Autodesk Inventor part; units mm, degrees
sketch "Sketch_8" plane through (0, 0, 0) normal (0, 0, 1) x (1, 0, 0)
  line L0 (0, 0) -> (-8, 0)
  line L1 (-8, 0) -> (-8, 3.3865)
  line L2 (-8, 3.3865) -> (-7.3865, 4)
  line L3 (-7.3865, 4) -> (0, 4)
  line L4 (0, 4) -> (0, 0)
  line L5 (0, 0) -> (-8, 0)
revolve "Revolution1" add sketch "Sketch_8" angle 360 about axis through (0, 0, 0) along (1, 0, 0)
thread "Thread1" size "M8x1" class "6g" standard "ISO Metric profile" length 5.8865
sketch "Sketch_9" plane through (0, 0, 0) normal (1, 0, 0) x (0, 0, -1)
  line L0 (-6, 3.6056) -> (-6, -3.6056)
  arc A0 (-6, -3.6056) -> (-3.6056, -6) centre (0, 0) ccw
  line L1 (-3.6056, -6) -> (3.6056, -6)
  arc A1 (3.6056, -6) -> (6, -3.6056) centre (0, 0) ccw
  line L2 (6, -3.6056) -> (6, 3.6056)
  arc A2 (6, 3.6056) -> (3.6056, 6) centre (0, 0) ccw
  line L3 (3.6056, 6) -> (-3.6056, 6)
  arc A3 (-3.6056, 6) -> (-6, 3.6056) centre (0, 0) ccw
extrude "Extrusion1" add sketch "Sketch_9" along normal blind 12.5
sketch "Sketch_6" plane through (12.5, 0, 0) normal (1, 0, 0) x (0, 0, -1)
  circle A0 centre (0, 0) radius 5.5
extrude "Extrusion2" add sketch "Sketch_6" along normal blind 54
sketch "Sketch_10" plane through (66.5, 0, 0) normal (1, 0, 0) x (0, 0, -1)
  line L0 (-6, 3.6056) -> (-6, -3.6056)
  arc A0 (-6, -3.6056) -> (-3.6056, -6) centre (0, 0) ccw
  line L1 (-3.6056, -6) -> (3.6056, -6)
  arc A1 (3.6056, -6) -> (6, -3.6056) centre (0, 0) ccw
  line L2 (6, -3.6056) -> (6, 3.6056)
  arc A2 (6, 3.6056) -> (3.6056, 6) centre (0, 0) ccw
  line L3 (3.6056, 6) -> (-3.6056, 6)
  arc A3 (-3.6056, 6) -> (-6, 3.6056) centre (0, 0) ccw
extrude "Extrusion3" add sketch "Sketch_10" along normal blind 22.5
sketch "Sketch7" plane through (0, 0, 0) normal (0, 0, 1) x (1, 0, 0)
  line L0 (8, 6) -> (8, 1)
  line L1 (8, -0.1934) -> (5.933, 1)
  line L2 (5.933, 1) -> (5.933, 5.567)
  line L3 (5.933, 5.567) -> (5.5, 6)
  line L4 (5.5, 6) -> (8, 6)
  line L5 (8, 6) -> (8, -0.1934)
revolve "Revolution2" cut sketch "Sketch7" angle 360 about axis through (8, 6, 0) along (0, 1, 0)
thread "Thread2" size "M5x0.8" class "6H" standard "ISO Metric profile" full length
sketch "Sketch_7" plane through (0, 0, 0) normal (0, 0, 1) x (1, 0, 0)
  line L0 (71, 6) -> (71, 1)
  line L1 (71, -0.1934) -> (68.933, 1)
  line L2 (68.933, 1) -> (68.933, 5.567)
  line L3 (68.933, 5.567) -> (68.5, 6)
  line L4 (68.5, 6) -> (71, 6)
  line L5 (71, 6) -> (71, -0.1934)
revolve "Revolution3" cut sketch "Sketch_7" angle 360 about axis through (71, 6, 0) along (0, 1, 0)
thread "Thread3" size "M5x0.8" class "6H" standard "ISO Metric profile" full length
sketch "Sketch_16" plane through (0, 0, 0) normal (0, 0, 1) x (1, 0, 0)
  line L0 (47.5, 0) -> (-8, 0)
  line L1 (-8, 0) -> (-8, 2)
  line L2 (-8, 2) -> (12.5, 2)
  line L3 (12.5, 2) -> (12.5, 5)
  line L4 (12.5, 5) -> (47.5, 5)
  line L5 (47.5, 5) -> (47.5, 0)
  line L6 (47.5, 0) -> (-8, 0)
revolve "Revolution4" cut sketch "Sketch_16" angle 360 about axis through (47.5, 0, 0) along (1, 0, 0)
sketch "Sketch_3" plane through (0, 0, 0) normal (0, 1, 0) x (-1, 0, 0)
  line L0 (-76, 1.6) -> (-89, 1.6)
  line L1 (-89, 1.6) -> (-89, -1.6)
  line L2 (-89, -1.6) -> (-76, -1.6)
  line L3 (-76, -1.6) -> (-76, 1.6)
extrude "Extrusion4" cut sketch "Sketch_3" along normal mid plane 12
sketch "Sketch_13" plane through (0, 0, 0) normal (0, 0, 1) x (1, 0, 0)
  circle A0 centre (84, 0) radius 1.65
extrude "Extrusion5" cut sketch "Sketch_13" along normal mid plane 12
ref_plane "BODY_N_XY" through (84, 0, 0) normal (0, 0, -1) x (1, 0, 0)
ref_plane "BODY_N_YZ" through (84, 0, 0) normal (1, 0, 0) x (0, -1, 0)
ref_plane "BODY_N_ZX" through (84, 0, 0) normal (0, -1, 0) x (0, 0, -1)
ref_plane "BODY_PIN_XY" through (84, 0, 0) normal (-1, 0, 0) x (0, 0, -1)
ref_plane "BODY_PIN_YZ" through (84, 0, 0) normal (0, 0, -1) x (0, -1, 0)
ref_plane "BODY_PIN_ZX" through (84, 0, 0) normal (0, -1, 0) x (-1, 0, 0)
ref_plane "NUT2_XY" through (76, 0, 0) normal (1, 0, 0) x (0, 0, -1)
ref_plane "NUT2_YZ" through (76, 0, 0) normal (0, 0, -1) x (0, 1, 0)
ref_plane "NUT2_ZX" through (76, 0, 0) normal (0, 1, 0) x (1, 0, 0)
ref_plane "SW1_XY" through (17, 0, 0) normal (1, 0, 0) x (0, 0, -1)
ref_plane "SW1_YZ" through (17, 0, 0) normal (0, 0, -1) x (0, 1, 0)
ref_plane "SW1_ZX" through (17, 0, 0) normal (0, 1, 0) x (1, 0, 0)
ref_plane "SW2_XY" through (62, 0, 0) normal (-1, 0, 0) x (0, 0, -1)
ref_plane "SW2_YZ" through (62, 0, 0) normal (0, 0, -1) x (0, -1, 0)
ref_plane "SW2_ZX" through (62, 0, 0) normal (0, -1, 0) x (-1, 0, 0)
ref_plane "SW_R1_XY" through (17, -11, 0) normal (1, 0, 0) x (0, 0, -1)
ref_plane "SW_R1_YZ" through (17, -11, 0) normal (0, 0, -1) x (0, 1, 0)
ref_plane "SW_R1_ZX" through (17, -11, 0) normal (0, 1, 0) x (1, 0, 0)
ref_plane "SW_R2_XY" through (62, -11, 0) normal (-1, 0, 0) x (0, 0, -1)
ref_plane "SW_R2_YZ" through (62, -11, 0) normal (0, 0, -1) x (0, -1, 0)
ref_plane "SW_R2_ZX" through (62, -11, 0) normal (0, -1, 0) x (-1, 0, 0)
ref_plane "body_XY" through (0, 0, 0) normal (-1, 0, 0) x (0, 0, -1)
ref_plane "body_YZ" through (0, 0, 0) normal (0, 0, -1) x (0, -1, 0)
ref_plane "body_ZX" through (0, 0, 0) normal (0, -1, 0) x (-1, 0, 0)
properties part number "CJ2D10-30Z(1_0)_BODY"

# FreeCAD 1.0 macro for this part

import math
import FreeCAD as App
import Part
import Sketcher
from FreeCAD import Vector
Q = App.Units.Quantity


def add_polygon(sketch, points):
    """Adds a closed chain of lines whose ends are joined by coincident constraints."""
    first, n = sketch.GeometryCount, len(points)
    for a, b in zip(points, points[1:] + points[:1]):
        sketch.addGeometry(Part.LineSegment(App.Vector(*a, 0), App.Vector(*b, 0)), False)
    for i in range(n):
        sketch.addConstraint(Sketcher.Constraint("Coincident", first + i, 2, first + (i + 1) % n, 1))

doc = App.newDocument("Part")
params = doc.addObject("Spreadsheet::Sheet", "Params")
for row, (alias, value) in enumerate([
    ("sketch1_width", "8 mm"),
    ("sketch1_height", "4 mm"),
    ("revolution_angle", "360 deg"),
    ("sketch2_radius", "7 mm"),
    ("pad1_length", "12.5 mm"),
    ("sketch3_diameter", "11 mm"),
    ("pad2_length", "54 mm"),
    ("sketch4_radius", "7 mm"),
    ("pad3_length", "22.5 mm"),
    ("sketch5_width", "2.5 mm"),
    ("groove_angle", "360 deg"),
    ("sketch6_width", "2.5 mm"),
    ("groove2_angle", "360 deg"),
    ("sketch7_width", "35 mm"),
    ("sketch7_height", "5 mm"),
    ("sketch7_height2", "3 mm"),
    ("sketch7_width2", "55.5 mm"),
    ("groove3_angle", "360 deg"),
    ("sketch8_width", "13 mm"),
    ("sketch8_height", "3.2 mm"),
    ("pocket1_length", "12 mm"),
    ("sketch9_diameter", "3.3 mm"),
    ("pocket2_length", "12 mm"),
], start=1):
    params.set(f"A{row}", alias)
    params.set(f"B{row}", "=" + value)
    params.setAlias(f"B{row}", alias)

body = doc.addObject("PartDesign::Body", "Body")

sketch1 = body.newObject("Sketcher::SketchObject", "Sketch")
sketch1.AttachmentSupport = (doc.getObject("XY_Plane"), [""])
sketch1.MapMode = "FlatFace"
add_polygon(sketch1, [(-8, 0), (0, 0), (0, 4), (-7.3865, 4), (-8, 3.3865)])
sketch1.addConstraint(Sketcher.Constraint("Horizontal", 0))
sketch1.addConstraint(Sketcher.Constraint("Vertical", 1))
sketch1.addConstraint(Sketcher.Constraint("Horizontal", 2))
sketch1.addConstraint(Sketcher.Constraint("Vertical", 4))
sketch1.addConstraint(Sketcher.Constraint("Coincident", 0, 2, -1, 1))
sketch1.addConstraint(Sketcher.Constraint("DistanceX", 0, 1, 0, 2, 8.0))
sketch1.addConstraint(Sketcher.Constraint("DistanceY", 1, 1, 1, 2, 4.0))
sketch1.addConstraint(Sketcher.Constraint("Angle", 3, Q("-135 deg")))
sketch1.addConstraint(Sketcher.Constraint("DistanceX", 2, 2, 2, 1, 7.3865))
sketch1.setExpression("Constraints[10]", "Params.sketch1_width")
sketch1.setExpression("Constraints[11]", "Params.sketch1_height")
revolution = body.newObject("PartDesign::Revolution", "Revolution")
revolution.Profile = sketch1
revolution.ReferenceAxis = (sketch1, ["H_Axis"])
revolution.setExpression("Angle", "Params.revolution_angle")

sketch2 = body.newObject("Sketcher::SketchObject", "Sketch001")
sketch2.AttachmentSupport = (doc.getObject("YZ_Plane"), [""])
sketch2.MapMode = "FlatFace"
sketch2.addGeometry(Part.ArcOfCircle(Part.Circle(Vector(0, 0, 0), Vector(0, 0, 1), 7.000025), math.radians(31.003061), math.radians(58.996939)), False)
sketch2.addGeometry(Part.LineSegment(Vector(3.6056, 6, 0), Vector(-3.6056, 6, 0)), False)
sketch2.addGeometry(Part.ArcOfCircle(Part.Circle(Vector(0, 0, 0), Vector(0, 0, 1), 7.000025), math.radians(121.003061), math.radians(148.996939)), False)
sketch2.addGeometry(Part.LineSegment(Vector(-6, 3.6056, 0), Vector(-6, -3.6056, 0)), False)
sketch2.addGeometry(Part.ArcOfCircle(Part.Circle(Vector(0, 0, 0), Vector(0, 0, 1), 7.000025), math.radians(-148.996939), math.radians(-121.003061)), False)
sketch2.addGeometry(Part.LineSegment(Vector(-3.6056, -6, 0), Vector(3.6056, -6, 0)), False)
sketch2.addGeometry(Part.ArcOfCircle(Part.Circle(Vector(0, 0, 0), Vector(0, 0, 1), 7.000025), math.radians(-58.996939), math.radians(-31.003061)), False)
sketch2.addGeometry(Part.LineSegment(Vector(6, -3.6056, 0), Vector(6, 3.6056, 0)), False)
sketch2.addConstraint(Sketcher.Constraint("Coincident", 0, 2, 1, 1))
sketch2.addConstraint(Sketcher.Constraint("Coincident", 1, 2, 2, 1))
sketch2.addConstraint(Sketcher.Constraint("Coincident", 2, 2, 3, 1))
sketch2.addConstraint(Sketcher.Constraint("Coincident", 3, 2, 4, 1))
sketch2.addConstraint(Sketcher.Constraint("Coincident", 4, 2, 5, 1))
sketch2.addConstraint(Sketcher.Constraint("Coincident", 5, 2, 6, 1))
sketch2.addConstraint(Sketcher.Constraint("Coincident", 6, 2, 7, 1))
sketch2.addConstraint(Sketcher.Constraint("Coincident", 7, 2, 0, 1))
sketch2.addConstraint(Sketcher.Constraint("Horizontal", 1))
sketch2.addConstraint(Sketcher.Constraint("Vertical", 3))
sketch2.addConstraint(Sketcher.Constraint("Horizontal", 5))
sketch2.addConstraint(Sketcher.Constraint("Vertical", 7))
sketch2.addConstraint(Sketcher.Constraint("Coincident", 0, 3, -1, 1))
sketch2.addConstraint(Sketcher.Constraint("Coincident", 2, 3, -1, 1))
sketch2.addConstraint(Sketcher.Constraint("Coincident", 4, 3, -1, 1))
sketch2.addConstraint(Sketcher.Constraint("Coincident", 6, 3, -1, 1))
sketch2.addConstraint(Sketcher.Constraint("Equal", 0, 2))
sketch2.addConstraint(Sketcher.Constraint("Equal", 2, 4))
sketch2.addConstraint(Sketcher.Constraint("Equal", 4, 6))
sketch2.addConstraint(Sketcher.Constraint("Horizontal", 3, 2, 6, 2))
sketch2.addConstraint(Sketcher.Constraint("Vertical", 1, 2, 4, 2))
sketch2.addConstraint(Sketcher.Constraint("Equal", 5, 3))
sketch2.addConstraint(Sketcher.Constraint("Radius", 0, 7.0))
sketch2.addConstraint(Sketcher.Constraint("DistanceY", -1, 1, 0, 2, 6.0))
sketch2.setExpression("Constraints[22]", "Params.sketch2_radius")
pad1 = body.newObject("PartDesign::Pad", "Pad")
pad1.Profile = sketch2
pad1.setExpression("Length", "Params.pad1_length")

sketch3 = body.newObject("Sketcher::SketchObject", "Sketch002")
sketch3.AttachmentSupport = (doc.getObject("YZ_Plane"), [""])
sketch3.MapMode = "FlatFace"
sketch3.AttachmentOffset = App.Placement(Vector(0, 0, 12.5), App.Rotation())
sketch3.addGeometry(Part.Circle(Vector(0, 0, 0), Vector(0, 0, 1), 5.5), False)
sketch3.addConstraint(Sketcher.Constraint("Coincident", 0, 3, -1, 1))
sketch3.addConstraint(Sketcher.Constraint("Diameter", 0, 11.0))
sketch3.setExpression("Constraints[1]", "Params.sketch3_diameter")
pad2 = body.newObject("PartDesign::Pad", "Pad001")
pad2.Profile = sketch3
pad2.setExpression("Length", "Params.pad2_length")

sketch4 = body.newObject("Sketcher::SketchObject", "Sketch003")
sketch4.AttachmentSupport = (doc.getObject("YZ_Plane"), [""])
sketch4.MapMode = "FlatFace"
sketch4.AttachmentOffset = App.Placement(Vector(0, 0, 66.5), App.Rotation())
sketch4.addGeometry(Part.ArcOfCircle(Part.Circle(Vector(0, 0, 0), Vector(0, 0, 1), 7.000025), math.radians(31.003061), math.radians(58.996939)), False)
sketch4.addGeometry(Part.LineSegment(Vector(3.6056, 6, 0), Vector(-3.6056, 6, 0)), False)
sketch4.addGeometry(Part.ArcOfCircle(Part.Circle(Vector(0, 0, 0), Vector(0, 0, 1), 7.000025), math.radians(121.003061), math.radians(148.996939)), False)
sketch4.addGeometry(Part.LineSegment(Vector(-6, 3.6056, 0), Vector(-6, -3.6056, 0)), False)
sketch4.addGeometry(Part.ArcOfCircle(Part.Circle(Vector(0, 0, 0), Vector(0, 0, 1), 7.000025), math.radians(-148.996939), math.radians(-121.003061)), False)
sketch4.addGeometry(Part.LineSegment(Vector(-3.6056, -6, 0), Vector(3.6056, -6, 0)), False)
sketch4.addGeometry(Part.ArcOfCircle(Part.Circle(Vector(0, 0, 0), Vector(0, 0, 1), 7.000025), math.radians(-58.996939), math.radians(-31.003061)), False)
sketch4.addGeometry(Part.LineSegment(Vector(6, -3.6056, 0), Vector(6, 3.6056, 0)), False)
sketch4.addConstraint(Sketcher.Constraint("Coincident", 0, 2, 1, 1))
sketch4.addConstraint(Sketcher.Constraint("Coincident", 1, 2, 2, 1))
sketch4.addConstraint(Sketcher.Constraint("Coincident", 2, 2, 3, 1))
sketch4.addConstraint(Sketcher.Constraint("Coincident", 3, 2, 4, 1))
sketch4.addConstraint(Sketcher.Constraint("Coincident", 4, 2, 5, 1))
sketch4.addConstraint(Sketcher.Constraint("Coincident", 5, 2, 6, 1))
sketch4.addConstraint(Sketcher.Constraint("Coincident", 6, 2, 7, 1))
sketch4.addConstraint(Sketcher.Constraint("Coincident", 7, 2, 0, 1))
sketch4.addConstraint(Sketcher.Constraint("Horizontal", 1))
sketch4.addConstraint(Sketcher.Constraint("Vertical", 3))
sketch4.addConstraint(Sketcher.Constraint("Horizontal", 5))
sketch4.addConstraint(Sketcher.Constraint("Vertical", 7))
sketch4.addConstraint(Sketcher.Constraint("Coincident", 0, 3, -1, 1))
sketch4.addConstraint(Sketcher.Constraint("Coincident", 2, 3, -1, 1))
sketch4.addConstraint(Sketcher.Constraint("Coincident", 4, 3, -1, 1))
sketch4.addConstraint(Sketcher.Constraint("Coincident", 6, 3, -1, 1))
sketch4.addConstraint(Sketcher.Constraint("Equal", 0, 2))
sketch4.addConstraint(Sketcher.Constraint("Equal", 2, 4))
sketch4.addConstraint(Sketcher.Constraint("Equal", 4, 6))
sketch4.addConstraint(Sketcher.Constraint("Horizontal", 3, 2, 6, 2))
sketch4.addConstraint(Sketcher.Constraint("Vertical", 1, 2, 4, 2))
sketch4.addConstraint(Sketcher.Constraint("Equal", 5, 3))
sketch4.addConstraint(Sketcher.Constraint("Radius", 0, 7.0))
sketch4.addConstraint(Sketcher.Constraint("DistanceY", -1, 1, 0, 2, 6.0))
sketch4.setExpression("Constraints[22]", "Params.sketch4_radius")
pad3 = body.newObject("PartDesign::Pad", "Pad002")
pad3.Profile = sketch4
pad3.setExpression("Length", "Params.pad3_length")

sketch5 = body.newObject("Sketcher::SketchObject", "Sketch004")
sketch5.AttachmentSupport = (doc.getObject("XY_Plane"), [""])
sketch5.MapMode = "FlatFace"
add_polygon(sketch5, [(8, -0.1934), (8, 6), (5.5, 6), (5.933, 5.567), (5.933, 1)])
sketch5.addGeometry(Part.LineSegment(Vector(8, -0.1934, 0), Vector(8, 6, 0)), True)
sketch5.addConstraint(Sketcher.Constraint("Vertical", 0))
sketch5.addConstraint(Sketcher.Constraint("Horizontal", 1))
sketch5.addConstraint(Sketcher.Constraint("Vertical", 3))
sketch5.addConstraint(Sketcher.Constraint("Vertical", 5))
sketch5.addConstraint(Sketcher.Constraint("Coincident", 5, 1, 4, 2))
sketch5.addConstraint(Sketcher.Constraint("Horizontal", 1, 2, 5, 2))
sketch5.addConstraint(Sketcher.Constraint("Angle", 2, Q("-45 deg")))
sketch5.addConstraint(Sketcher.Constraint("Angle", 4, Q("-30.0004 deg")))
sketch5.addConstraint(Sketcher.Constraint("DistanceX", 1, 2, 1, 1, 2.5))
sketch5.addConstraint(Sketcher.Constraint("DistanceX", -1, 1, 0, 2, 8.0))
sketch5.addConstraint(Sketcher.Constraint("DistanceY", -1, 1, 0, 2, 6.0))
sketch5.addConstraint(Sketcher.Constraint("DistanceY", -1, 1, 3, 2, 1.0))
sketch5.addConstraint(Sketcher.Constraint("DistanceY", 3, 2, 3, 1, 4.567))
sketch5.setExpression("Constraints[13]", "Params.sketch5_width")
groove = body.newObject("PartDesign::Groove", "Groove")
groove.Profile = sketch5
groove.ReferenceAxis = (sketch5, ["Axis0"])
groove.setExpression("Angle", "Params.groove_angle")

sketch6 = body.newObject("Sketcher::SketchObject", "Sketch005")
sketch6.AttachmentSupport = (doc.getObject("XY_Plane"), [""])
sketch6.MapMode = "FlatFace"
add_polygon(sketch6, [(71, -0.1934), (71, 6), (68.5, 6), (68.933, 5.567), (68.933, 1)])
sketch6.addGeometry(Part.LineSegment(Vector(71, -0.1934, 0), Vector(71, 6, 0)), True)
sketch6.addConstraint(Sketcher.Constraint("Vertical", 0))
sketch6.addConstraint(Sketcher.Constraint("Horizontal", 1))
sketch6.addConstraint(Sketcher.Constraint("Vertical", 3))
sketch6.addConstraint(Sketcher.Constraint("Vertical", 5))
sketch6.addConstraint(Sketcher.Constraint("Coincident", 5, 1, 4, 2))
sketch6.addConstraint(Sketcher.Constraint("Horizontal", 1, 2, 5, 2))
sketch6.addConstraint(Sketcher.Constraint("Angle", 2, Q("-45 deg")))
sketch6.addConstraint(Sketcher.Constraint("Angle", 4, Q("-30.0004 deg")))
sketch6.addConstraint(Sketcher.Constraint("DistanceX", 1, 2, 1, 1, 2.5))
sketch6.addConstraint(Sketcher.Constraint("DistanceX", -1, 1, 0, 2, 71.0))
sketch6.addConstraint(Sketcher.Constraint("DistanceY", -1, 1, 0, 2, 6.0))
sketch6.addConstraint(Sketcher.Constraint("DistanceY", -1, 1, 3, 2, 1.0))
sketch6.addConstraint(Sketcher.Constraint("DistanceY", 3, 2, 3, 1, 4.567))
sketch6.setExpression("Constraints[13]", "Params.sketch6_width")
groove2 = body.newObject("PartDesign::Groove", "Groove001")
groove2.Profile = sketch6
groove2.ReferenceAxis = (sketch6, ["Axis0"])
groove2.setExpression("Angle", "Params.groove2_angle")

sketch7 = body.newObject("Sketcher::SketchObject", "Sketch006")
sketch7.AttachmentSupport = (doc.getObject("XY_Plane"), [""])
sketch7.MapMode = "FlatFace"
add_polygon(sketch7, [(-8, 0), (47.5, 0), (47.5, 5), (12.5, 5), (12.5, 2), (-8, 2)])
sketch7.addConstraint(Sketcher.Constraint("Horizontal", 0))
sketch7.addConstraint(Sketcher.Constraint("Vertical", 1))
sketch7.addConstraint(Sketcher.Constraint("Horizontal", 2))
sketch7.addConstraint(Sketcher.Constraint("Vertical", 3))
sketch7.addConstraint(Sketcher.Constraint("Horizontal", 4))
sketch7.addConstraint(Sketcher.Constraint("Vertical", 5))
sketch7.addConstraint(Sketcher.Constraint("PointOnObject", 0, 2, -1))
sketch7.addConstraint(Sketcher.Constraint("DistanceX", 2, 2, 2, 1, 35.0))
sketch7.addConstraint(Sketcher.Constraint("DistanceY", 1, 1, 1, 2, 5.0))
sketch7.addConstraint(Sketcher.Constraint("DistanceY", 3, 2, 3, 1, 3.0))
sketch7.addConstraint(Sketcher.Constraint("DistanceX", 0, 1, 0, 2, 55.5))
sketch7.addConstraint(Sketcher.Constraint("DistanceX", 4, 2, -1, 1, 8.0))
sketch7.setExpression("Constraints[13]", "Params.sketch7_width")
sketch7.setExpression("Constraints[14]", "Params.sketch7_height")
sketch7.setExpression("Constraints[15]", "Params.sketch7_height2")
sketch7.setExpression("Constraints[16]", "Params.sketch7_width2")
groove3 = body.newObject("PartDesign::Groove", "Groove002")
groove3.Profile = sketch7
groove3.ReferenceAxis = (sketch7, ["H_Axis"])
groove3.setExpression("Angle", "Params.groove3_angle")

sketch8 = body.newObject("Sketcher::SketchObject", "Sketch007")
sketch8.AttachmentSupport = (doc.getObject("XZ_Plane"), [""])
sketch8.MapMode = "FlatFace"
add_polygon(sketch8, [(76, -1.6), (76, 1.6), (89, 1.6), (89, -1.6)])
sketch8.addConstraint(Sketcher.Constraint("Vertical", 0))
sketch8.addConstraint(Sketcher.Constraint("Horizontal", 1))
sketch8.addConstraint(Sketcher.Constraint("Vertical", 2))
sketch8.addConstraint(Sketcher.Constraint("Horizontal", 3))
sketch8.addConstraint(Sketcher.Constraint("DistanceX", 1, 1, 1, 2, 13.0))
sketch8.addConstraint(Sketcher.Constraint("DistanceY", 0, 1, 0, 2, 3.2))
sketch8.addConstraint(Sketcher.Constraint("DistanceX", -1, 1, 0, 2, 76.0))
sketch8.addConstraint(Sketcher.Constraint("DistanceY", -1, 1, 0, 2, 1.6))
sketch8.setExpression("Constraints[8]", "Params.sketch8_width")
sketch8.setExpression("Constraints[9]", "Params.sketch8_height")
pocket1 = body.newObject("PartDesign::Pocket", "Pocket")
pocket1.Profile = sketch8
pocket1.setExpression("Length", "Params.pocket1_length")
pocket1.Midplane = True

sketch9 = body.newObject("Sketcher::SketchObject", "Sketch008")
sketch9.AttachmentSupport = (doc.getObject("XY_Plane"), [""])
sketch9.MapMode = "FlatFace"
sketch9.addGeometry(Part.Circle(Vector(84, 0, 0), Vector(0, 0, 1), 1.65), False)
sketch9.addConstraint(Sketcher.Constraint("PointOnObject", 0, 3, -1))
sketch9.addConstraint(Sketcher.Constraint("Diameter", 0, 3.3))
sketch9.addConstraint(Sketcher.Constraint("DistanceX", -1, 1, 0, 3, 84.0))
sketch9.setExpression("Constraints[1]", "Params.sketch9_diameter")
pocket2 = body.newObject("PartDesign::Pocket", "Pocket001")
pocket2.Profile = sketch9
pocket2.setExpression("Length", "Params.pocket2_length")
pocket2.Midplane = True

doc.recompute()
